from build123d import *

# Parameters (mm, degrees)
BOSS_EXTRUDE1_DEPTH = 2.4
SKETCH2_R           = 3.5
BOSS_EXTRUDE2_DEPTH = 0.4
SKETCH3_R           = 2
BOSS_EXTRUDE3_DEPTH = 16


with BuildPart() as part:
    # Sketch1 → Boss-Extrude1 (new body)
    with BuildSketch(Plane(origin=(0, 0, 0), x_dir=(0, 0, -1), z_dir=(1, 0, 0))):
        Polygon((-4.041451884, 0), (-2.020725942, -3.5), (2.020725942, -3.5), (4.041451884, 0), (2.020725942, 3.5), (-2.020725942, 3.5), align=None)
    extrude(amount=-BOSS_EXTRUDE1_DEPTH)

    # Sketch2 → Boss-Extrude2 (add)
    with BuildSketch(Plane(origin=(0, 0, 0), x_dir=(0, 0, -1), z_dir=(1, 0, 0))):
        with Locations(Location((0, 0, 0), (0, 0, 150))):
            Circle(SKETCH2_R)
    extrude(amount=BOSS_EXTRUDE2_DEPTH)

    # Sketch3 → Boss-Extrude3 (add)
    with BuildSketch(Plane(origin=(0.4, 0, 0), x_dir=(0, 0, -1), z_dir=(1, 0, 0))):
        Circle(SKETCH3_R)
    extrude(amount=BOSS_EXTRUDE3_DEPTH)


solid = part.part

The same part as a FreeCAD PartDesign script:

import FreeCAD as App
import Part
import Sketcher
Q = App.Units.Quantity

doc = App.newDocument("Part")
body = doc.addObject("PartDesign::Body", "Body")

# Sketch on YZ plane
sketch1 = body.newObject("Sketcher::SketchObject", "Sketch")
sketch1.AttachmentSupport = (doc.getObject("YZ_Plane"), [""])
sketch1.MapMode = "FlatFace"
sketch1.addGeometry([
    Part.LineSegment(App.Vector(0, 4, 0), App.Vector(-3.5, 2, 0)),  # 0
    Part.LineSegment(App.Vector(-3.5, 2, 0), App.Vector(-3.5, -2, 0)),  # 1
    Part.LineSegment(App.Vector(-3.5, -2, 0), App.Vector(0, -4, 0)),  # 2
    Part.LineSegment(App.Vector(0, -4, 0), App.Vector(3.5, -2, 0)),  # 3
    Part.LineSegment(App.Vector(3.5, -2, 0), App.Vector(3.5, 2, 0)),  # 4
    Part.LineSegment(App.Vector(3.5, 2, 0), App.Vector(0, 4, 0)),  # 5
], False)
sketch1.addConstraint([
    Sketcher.Constraint("Coincident", 0, 2, 1, 1),
    Sketcher.Constraint("Coincident", 1, 2, 2, 1),
    Sketcher.Constraint("Coincident", 2, 2, 3, 1),
    Sketcher.Constraint("Coincident", 3, 2, 4, 1),
    Sketcher.Constraint("Coincident", 4, 2, 5, 1),
    Sketcher.Constraint("Coincident", 5, 2, 0, 1),
    Sketcher.Constraint("Vertical", 1),
    Sketcher.Constraint("Vertical", 4),
    Sketcher.Constraint("Symmetric", 0, 2, 3, 2, -1, 1),
    Sketcher.Constraint("Symmetric", 2, 2, 5, 2, -1, 1),
    Sketcher.Constraint("PointOnObject", 2, 2, -2),
    Sketcher.Constraint("Parallel", 2, 5),
    Sketcher.Constraint("Horizontal", 1, 2, 3, 2),
    Sketcher.Constraint("Angle", 0, Q("-150 deg")),
    Sketcher.Constraint("DistanceX", 1, 2, 3, 2, Q("7 mm")),
    Sketcher.Constraint("DistanceY", 1, 2, 1, 1, Q("4.041452 mm")),
])
pad1 = body.newObject("PartDesign::Pad", "Pad")
pad1.Profile = sketch1
pad1.Length = 2.4
pad1.Reversed = True

# Sketch on YZ plane
sketch2 = body.newObject("Sketcher::SketchObject", "Sketch001")
sketch2.AttachmentSupport = (doc.getObject("YZ_Plane"), [""])
sketch2.MapMode = "FlatFace"
sketch2.addGeometry(Part.Circle(App.Vector(0, 0, 0), App.Vector(0, 0, 1), 3.5), False)
sketch2.addConstraint([
    Sketcher.Constraint("Coincident", 0, 3, -1, 1),
    Sketcher.Constraint("Diameter", 0, Q("7 mm")),
])
pad2 = body.newObject("PartDesign::Pad", "Pad001")
pad2.Profile = sketch2
pad2.Length = 0.4

# Sketch on YZ plane
sketch3 = body.newObject("Sketcher::SketchObject", "Sketch002")
sketch3.AttachmentSupport = (doc.getObject("YZ_Plane"), [""])
sketch3.MapMode = "FlatFace"
sketch3.AttachmentOffset = App.Placement(App.Vector(0, 0, 0.4), App.Rotation())
sketch3.addGeometry(Part.Circle(App.Vector(0, 0, 0), App.Vector(0, 0, 1), 2), False)
sketch3.addConstraint([
    Sketcher.Constraint("Coincident", 0, 3, -1, 1),
    Sketcher.Constraint("Diameter", 0, Q("4 mm")),
])
pad3 = body.newObject("PartDesign::Pad", "Pad002")
pad3.Profile = sketch3
pad3.Length = 16

doc.recompute()
